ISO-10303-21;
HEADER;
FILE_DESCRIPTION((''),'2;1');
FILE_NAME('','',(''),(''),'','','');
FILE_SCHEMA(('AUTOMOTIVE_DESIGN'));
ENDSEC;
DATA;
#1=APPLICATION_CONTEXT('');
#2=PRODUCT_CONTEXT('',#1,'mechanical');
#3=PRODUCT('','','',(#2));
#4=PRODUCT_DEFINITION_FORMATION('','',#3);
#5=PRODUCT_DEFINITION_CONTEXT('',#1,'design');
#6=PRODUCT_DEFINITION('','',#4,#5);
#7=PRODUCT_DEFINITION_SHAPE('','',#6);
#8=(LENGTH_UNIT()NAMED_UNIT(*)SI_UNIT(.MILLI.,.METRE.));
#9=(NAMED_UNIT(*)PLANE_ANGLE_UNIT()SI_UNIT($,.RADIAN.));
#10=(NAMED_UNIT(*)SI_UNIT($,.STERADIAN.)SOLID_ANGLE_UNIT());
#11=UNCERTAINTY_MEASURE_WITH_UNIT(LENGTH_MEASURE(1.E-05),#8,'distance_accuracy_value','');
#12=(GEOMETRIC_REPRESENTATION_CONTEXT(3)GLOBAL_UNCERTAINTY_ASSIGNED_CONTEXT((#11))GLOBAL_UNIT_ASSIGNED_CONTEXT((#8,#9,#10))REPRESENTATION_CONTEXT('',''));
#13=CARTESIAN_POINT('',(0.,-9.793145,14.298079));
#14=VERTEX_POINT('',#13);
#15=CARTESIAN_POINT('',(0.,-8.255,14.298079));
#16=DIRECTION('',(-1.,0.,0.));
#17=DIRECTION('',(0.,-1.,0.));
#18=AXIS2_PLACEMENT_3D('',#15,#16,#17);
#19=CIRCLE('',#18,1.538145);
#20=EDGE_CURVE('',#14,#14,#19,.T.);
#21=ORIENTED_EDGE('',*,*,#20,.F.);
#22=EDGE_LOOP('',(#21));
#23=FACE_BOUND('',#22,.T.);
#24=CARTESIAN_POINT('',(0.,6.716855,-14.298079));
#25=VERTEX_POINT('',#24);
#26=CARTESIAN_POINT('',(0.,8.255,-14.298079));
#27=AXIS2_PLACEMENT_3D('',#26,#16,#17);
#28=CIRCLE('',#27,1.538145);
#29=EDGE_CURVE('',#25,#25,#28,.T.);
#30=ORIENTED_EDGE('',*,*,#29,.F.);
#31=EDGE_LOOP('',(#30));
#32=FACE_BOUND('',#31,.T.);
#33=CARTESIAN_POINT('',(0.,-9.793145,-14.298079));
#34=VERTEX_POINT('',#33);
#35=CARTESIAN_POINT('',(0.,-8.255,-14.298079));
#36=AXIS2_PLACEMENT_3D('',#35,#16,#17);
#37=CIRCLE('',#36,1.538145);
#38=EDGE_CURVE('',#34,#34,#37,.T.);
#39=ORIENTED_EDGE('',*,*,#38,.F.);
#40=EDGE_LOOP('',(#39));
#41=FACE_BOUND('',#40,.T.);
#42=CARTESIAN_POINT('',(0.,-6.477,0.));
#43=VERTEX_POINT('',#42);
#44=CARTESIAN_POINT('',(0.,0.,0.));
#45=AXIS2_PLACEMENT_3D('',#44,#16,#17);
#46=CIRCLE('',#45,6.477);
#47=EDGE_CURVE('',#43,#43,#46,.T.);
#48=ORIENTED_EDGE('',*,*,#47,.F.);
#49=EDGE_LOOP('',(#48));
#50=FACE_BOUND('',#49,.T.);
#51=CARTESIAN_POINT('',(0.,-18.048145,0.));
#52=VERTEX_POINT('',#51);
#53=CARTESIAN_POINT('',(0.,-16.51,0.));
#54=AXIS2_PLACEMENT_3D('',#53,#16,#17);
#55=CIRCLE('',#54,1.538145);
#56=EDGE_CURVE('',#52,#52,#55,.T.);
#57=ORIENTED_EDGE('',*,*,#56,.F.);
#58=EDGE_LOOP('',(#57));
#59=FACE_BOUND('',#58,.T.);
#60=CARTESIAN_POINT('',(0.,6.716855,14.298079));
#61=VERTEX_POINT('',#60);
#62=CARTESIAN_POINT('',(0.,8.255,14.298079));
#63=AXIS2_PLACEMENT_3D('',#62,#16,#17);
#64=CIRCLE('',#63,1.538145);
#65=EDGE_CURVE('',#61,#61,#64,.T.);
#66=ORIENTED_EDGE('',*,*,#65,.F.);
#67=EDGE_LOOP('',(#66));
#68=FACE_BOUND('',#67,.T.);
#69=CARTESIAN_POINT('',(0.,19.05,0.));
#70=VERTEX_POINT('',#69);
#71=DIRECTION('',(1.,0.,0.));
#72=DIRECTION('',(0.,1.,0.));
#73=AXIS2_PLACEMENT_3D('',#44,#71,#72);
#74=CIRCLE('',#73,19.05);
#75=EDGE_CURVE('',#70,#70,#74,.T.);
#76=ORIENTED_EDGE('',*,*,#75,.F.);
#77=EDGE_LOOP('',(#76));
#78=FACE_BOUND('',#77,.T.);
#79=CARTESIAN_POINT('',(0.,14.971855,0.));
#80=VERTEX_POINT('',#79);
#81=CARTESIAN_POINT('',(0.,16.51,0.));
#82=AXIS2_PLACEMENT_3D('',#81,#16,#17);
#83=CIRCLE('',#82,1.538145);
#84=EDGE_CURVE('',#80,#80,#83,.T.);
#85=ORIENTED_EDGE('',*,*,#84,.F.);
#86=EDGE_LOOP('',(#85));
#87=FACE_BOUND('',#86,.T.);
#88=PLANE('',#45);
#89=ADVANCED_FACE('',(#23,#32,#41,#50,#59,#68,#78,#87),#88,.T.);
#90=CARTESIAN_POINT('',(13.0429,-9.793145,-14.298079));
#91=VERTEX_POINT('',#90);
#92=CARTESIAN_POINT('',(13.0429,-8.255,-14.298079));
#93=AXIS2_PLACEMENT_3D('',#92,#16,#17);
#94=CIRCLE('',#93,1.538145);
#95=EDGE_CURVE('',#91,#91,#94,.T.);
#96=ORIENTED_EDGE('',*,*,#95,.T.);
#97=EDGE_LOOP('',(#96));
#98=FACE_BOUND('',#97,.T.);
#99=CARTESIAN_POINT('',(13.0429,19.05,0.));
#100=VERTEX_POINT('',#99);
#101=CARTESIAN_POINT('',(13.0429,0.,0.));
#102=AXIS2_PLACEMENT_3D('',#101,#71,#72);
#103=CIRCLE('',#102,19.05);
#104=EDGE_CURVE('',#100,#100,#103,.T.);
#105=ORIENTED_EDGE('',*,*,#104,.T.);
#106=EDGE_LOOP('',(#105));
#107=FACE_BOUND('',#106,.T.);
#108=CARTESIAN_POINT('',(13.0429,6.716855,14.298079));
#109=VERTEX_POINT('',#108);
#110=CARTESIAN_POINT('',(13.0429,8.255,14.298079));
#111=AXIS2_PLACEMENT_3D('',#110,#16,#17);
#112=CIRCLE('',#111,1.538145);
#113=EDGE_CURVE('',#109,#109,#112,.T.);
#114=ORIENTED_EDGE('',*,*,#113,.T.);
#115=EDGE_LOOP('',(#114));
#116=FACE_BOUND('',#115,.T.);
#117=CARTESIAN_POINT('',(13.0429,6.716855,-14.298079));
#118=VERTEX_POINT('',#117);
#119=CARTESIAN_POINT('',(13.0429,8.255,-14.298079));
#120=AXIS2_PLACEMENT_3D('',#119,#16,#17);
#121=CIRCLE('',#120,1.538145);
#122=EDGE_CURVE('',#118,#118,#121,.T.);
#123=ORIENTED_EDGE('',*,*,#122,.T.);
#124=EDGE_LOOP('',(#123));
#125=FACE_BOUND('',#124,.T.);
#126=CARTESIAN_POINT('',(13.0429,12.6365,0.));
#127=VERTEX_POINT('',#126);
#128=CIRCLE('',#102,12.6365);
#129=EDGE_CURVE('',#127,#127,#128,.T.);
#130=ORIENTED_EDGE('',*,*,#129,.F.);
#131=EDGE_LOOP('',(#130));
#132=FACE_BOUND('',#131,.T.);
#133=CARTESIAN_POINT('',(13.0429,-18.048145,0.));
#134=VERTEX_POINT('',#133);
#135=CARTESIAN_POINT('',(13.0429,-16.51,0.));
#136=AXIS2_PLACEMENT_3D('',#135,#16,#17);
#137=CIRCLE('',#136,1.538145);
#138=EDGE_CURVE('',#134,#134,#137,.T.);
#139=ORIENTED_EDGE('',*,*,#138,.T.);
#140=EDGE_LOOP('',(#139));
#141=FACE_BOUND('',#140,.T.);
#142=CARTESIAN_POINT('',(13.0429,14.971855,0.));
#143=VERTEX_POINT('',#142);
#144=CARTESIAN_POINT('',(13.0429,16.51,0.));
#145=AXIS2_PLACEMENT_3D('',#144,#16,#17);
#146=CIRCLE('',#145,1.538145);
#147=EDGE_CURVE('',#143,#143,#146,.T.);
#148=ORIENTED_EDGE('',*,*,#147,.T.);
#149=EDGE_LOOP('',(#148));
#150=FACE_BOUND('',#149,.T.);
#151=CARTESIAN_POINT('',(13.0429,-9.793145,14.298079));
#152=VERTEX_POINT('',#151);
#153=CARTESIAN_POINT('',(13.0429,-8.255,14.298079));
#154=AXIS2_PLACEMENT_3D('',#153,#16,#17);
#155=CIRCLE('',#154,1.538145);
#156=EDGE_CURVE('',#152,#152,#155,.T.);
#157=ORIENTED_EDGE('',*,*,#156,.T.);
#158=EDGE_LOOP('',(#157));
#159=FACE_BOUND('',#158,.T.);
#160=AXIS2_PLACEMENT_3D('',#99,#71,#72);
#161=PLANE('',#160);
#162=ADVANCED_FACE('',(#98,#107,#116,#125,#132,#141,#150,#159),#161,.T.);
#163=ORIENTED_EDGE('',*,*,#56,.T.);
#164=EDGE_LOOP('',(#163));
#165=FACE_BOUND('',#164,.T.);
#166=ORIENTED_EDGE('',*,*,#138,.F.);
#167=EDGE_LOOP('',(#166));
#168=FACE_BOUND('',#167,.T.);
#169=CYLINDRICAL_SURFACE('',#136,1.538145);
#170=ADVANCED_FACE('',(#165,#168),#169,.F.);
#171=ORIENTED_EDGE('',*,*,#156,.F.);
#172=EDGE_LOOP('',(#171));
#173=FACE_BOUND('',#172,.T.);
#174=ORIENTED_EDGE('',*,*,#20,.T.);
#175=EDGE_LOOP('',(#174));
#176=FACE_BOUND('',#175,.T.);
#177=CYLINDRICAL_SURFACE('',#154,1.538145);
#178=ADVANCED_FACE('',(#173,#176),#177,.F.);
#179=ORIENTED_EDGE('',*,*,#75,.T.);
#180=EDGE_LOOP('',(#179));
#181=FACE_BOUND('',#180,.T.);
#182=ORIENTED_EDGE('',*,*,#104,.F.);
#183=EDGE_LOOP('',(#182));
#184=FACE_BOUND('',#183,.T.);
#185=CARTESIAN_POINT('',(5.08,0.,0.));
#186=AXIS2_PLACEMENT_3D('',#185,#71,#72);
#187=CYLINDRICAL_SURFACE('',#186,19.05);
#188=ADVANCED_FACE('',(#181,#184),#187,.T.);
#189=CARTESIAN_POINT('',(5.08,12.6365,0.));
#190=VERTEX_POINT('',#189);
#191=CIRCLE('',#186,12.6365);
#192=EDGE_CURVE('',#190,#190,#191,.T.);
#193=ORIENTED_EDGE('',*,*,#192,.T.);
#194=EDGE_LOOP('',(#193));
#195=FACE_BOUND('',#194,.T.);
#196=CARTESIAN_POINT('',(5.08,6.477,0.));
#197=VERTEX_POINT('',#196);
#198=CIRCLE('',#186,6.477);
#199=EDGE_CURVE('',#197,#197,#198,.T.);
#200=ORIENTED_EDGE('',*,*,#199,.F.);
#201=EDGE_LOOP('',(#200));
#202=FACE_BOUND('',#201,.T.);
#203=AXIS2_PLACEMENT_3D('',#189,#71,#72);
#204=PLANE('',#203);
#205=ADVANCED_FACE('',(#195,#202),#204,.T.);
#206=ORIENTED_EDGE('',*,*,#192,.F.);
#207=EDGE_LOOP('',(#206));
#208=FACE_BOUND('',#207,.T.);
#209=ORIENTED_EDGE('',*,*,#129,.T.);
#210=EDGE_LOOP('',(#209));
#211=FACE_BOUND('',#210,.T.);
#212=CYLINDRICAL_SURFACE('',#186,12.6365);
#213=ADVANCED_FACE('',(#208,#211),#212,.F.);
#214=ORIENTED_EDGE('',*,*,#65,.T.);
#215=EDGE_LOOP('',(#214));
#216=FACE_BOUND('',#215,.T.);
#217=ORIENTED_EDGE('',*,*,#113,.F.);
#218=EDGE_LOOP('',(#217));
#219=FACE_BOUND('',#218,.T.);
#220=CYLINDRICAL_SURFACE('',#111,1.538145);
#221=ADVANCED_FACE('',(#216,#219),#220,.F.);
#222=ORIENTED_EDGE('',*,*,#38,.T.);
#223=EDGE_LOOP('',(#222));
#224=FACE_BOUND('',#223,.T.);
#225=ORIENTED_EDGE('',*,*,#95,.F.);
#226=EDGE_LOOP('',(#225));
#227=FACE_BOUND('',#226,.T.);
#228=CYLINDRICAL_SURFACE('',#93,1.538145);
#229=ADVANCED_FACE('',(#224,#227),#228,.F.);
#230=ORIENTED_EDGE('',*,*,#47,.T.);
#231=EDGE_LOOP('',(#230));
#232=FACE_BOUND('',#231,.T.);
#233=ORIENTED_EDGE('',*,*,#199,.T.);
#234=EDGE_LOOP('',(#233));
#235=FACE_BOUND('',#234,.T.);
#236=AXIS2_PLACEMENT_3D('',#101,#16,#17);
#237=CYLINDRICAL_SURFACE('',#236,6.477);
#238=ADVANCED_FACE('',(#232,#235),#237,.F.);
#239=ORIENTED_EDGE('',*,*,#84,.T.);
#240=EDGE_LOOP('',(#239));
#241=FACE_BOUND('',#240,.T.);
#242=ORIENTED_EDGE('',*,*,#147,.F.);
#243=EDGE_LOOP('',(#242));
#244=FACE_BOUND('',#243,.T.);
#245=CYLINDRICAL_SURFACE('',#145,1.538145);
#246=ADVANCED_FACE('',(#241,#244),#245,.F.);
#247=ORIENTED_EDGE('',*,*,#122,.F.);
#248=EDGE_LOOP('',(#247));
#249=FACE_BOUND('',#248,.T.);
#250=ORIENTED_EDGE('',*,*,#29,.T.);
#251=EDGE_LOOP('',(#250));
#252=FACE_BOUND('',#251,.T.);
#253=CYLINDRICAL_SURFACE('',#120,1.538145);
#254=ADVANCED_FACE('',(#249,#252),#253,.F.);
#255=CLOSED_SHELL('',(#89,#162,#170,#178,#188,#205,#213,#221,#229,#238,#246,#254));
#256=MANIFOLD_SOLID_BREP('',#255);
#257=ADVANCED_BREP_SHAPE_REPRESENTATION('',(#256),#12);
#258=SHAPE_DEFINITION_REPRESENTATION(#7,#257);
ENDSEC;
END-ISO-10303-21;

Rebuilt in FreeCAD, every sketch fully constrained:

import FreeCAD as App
import Part
import Sketcher
Q = App.Units.Quantity

doc = App.newDocument("Part")
body = doc.addObject("PartDesign::Body", "Body")

# Sketch on XY plane
sketch1 = body.newObject("Sketcher::SketchObject", "Sketch")
sketch1.AttachmentSupport = (doc.getObject("XY_Plane"), [""])
sketch1.MapMode = "FlatFace"
sketch1.addGeometry([
    Part.LineSegment(App.Vector(0, 19, 0), App.Vector(0, 0, 0)),  # 0
    Part.LineSegment(App.Vector(0, 0, 0), App.Vector(5, 0, 0)),  # 1
    Part.LineSegment(App.Vector(5, 0, 0), App.Vector(5, 13, 0)),  # 2
    Part.LineSegment(App.Vector(5, 13, 0), App.Vector(13, 13, 0)),  # 3
    Part.LineSegment(App.Vector(13, 13, 0), App.Vector(13, 19, 0)),  # 4
    Part.LineSegment(App.Vector(13, 19, 0), App.Vector(0, 19, 0)),  # 5
], False)
sketch1.addConstraint([
    Sketcher.Constraint("Coincident", 0, 2, 1, 1),
    Sketcher.Constraint("Coincident", 1, 2, 2, 1),
    Sketcher.Constraint("Coincident", 2, 2, 3, 1),
    Sketcher.Constraint("Coincident", 3, 2, 4, 1),
    Sketcher.Constraint("Coincident", 4, 2, 5, 1),
    Sketcher.Constraint("Coincident", 5, 2, 0, 1),
    Sketcher.Constraint("Vertical", 0),
    Sketcher.Constraint("Horizontal", 1),
    Sketcher.Constraint("Vertical", 2),
    Sketcher.Constraint("Horizontal", 3),
    Sketcher.Constraint("Vertical", 4),
    Sketcher.Constraint("Horizontal", 5),
    Sketcher.Constraint("Coincident", 0, 2, -1, 1),
    Sketcher.Constraint("DistanceX", 1, 1, 1, 2, Q("0.2 in")),
    Sketcher.Constraint("DistanceY", 0, 2, 0, 1, Q("0.75 in")),
    Sketcher.Constraint("DistanceX", 3, 1, 3, 2, Q("0.3135 in")),
    Sketcher.Constraint("DistanceY", 2, 1, 2, 2, Q("0.4975 in")),
])
revolution = body.newObject("PartDesign::Revolution", "Revolution")
revolution.Profile = sketch1
revolution.ReferenceAxis = (sketch1, ["H_Axis"])
revolution.Angle = 360

# Sketch on YZ plane
sketch2 = body.newObject("Sketcher::SketchObject", "Sketch001")
sketch2.AttachmentSupport = (doc.getObject("YZ_Plane"), [""])
sketch2.MapMode = "FlatFace"
sketch2.addGeometry(Part.Circle(App.Vector(0, 0, 0), App.Vector(0, 0, 1), 6), False)
sketch2.addConstraint([
    Sketcher.Constraint("Coincident", 0, 3, -1, 1),
    Sketcher.Constraint("Diameter", 0, Q("0.51 in")),
])
pocket1 = body.newObject("PartDesign::Pocket", "Pocket")
pocket1.Profile = sketch2
pocket1.Type = "ThroughAll"
pocket1.Reversed = True

# Sketch on YZ plane
sketch3 = body.newObject("Sketcher::SketchObject", "Sketch002")
sketch3.AttachmentSupport = (doc.getObject("YZ_Plane"), [""])
sketch3.MapMode = "FlatFace"
sketch3.addGeometry([
    Part.Circle(App.Vector(16.5, 0, 0), App.Vector(0, 0, 1), 1.5),  # 0
    Part.Circle(App.Vector(8.3, 14.3, 0), App.Vector(0, 0, 1), 1.5),  # 1
    Part.Circle(App.Vector(-8.3, 14.3, 0), App.Vector(0, 0, 1), 1.5),  # 2
    Part.Circle(App.Vector(-16.5, 0, 0), App.Vector(0, 0, 1), 1.5),  # 3
    Part.Circle(App.Vector(-8.3, -14.3, 0), App.Vector(0, 0, 1), 1.5),  # 4
    Part.Circle(App.Vector(8.3, -14.3, 0), App.Vector(0, 0, 1), 1.5),  # 5
], False)
sketch3.addConstraint([
    Sketcher.Constraint("Equal", 0, 1),
    Sketcher.Constraint("Equal", 1, 2),
    Sketcher.Constraint("Equal", 2, 3),
    Sketcher.Constraint("Equal", 3, 4),
    Sketcher.Constraint("Equal", 4, 5),
    Sketcher.Constraint("Symmetric", 0, 3, 3, 3, -1, 1),
    Sketcher.Constraint("Symmetric", 1, 3, 4, 3, -1, 1),
    Sketcher.Constraint("Symmetric", 2, 3, 5, 3, -1, 1),
    Sketcher.Constraint("Symmetric", 1, 3, 2, 3, -2),
    Sketcher.Constraint("PointOnObject", 0, 3, -1),
    Sketcher.Constraint("DistanceX", 3, 3, 0, 3, Q("1.3 in")),
    Sketcher.Constraint("DistanceX", 2, 3, 1, 3, Q("0.65 in")),
    Sketcher.Constraint("Diameter", 0, 3.076291),
    Sketcher.Constraint("DistanceY", -1, 1, 1, 3, 14.298079),
])
pocket2 = body.newObject("PartDesign::Pocket", "Pocket001")
pocket2.Profile = sketch3
pocket2.Type = "ThroughAll"
pocket2.Reversed = True

doc.recompute()
